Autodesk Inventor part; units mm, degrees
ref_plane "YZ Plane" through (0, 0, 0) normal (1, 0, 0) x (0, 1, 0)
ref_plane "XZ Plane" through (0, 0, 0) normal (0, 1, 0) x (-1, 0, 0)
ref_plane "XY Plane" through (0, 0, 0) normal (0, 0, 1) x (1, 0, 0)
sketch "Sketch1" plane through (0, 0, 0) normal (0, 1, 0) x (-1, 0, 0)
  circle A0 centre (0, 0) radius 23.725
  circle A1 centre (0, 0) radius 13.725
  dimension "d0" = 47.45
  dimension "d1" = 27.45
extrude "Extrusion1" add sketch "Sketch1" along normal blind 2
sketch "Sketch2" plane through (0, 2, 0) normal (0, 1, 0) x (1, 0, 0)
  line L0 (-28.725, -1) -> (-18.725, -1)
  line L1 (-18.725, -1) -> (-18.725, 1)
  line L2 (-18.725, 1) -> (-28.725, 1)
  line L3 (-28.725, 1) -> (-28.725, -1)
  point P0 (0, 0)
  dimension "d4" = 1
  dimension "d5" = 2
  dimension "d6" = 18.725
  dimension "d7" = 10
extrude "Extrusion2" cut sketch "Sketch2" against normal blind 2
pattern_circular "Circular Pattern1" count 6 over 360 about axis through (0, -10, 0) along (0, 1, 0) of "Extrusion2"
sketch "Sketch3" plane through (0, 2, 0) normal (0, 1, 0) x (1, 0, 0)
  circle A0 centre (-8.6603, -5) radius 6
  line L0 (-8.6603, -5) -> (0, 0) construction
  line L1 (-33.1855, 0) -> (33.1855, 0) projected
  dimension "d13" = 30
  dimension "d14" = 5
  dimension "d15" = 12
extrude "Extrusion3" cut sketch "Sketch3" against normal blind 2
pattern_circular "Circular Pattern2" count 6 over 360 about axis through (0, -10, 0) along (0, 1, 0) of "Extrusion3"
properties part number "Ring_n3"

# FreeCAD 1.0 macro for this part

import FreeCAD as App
import Part
import Sketcher

doc = App.newDocument("Part")
body = doc.addObject("PartDesign::Body", "Body")

# Sketch on XZ plane
sketch1 = doc.addObject("Sketcher::SketchObject", "Sketch")
body.addObject(sketch1)
sketch1.AttachmentSupport = (doc.XZ_Plane, [""])
sketch1.MapMode = "FlatFace"
sketch1.addGeometry([
    Part.Circle(App.Vector(0, 0, 0), App.Vector(0, 0, 1), 24),
    Part.Circle(App.Vector(0, 0, 0), App.Vector(0, 0, 1), 14),
], False)
sketch1.addConstraint([
    Sketcher.Constraint("Coincident", 0, 3, -1, 1),
    Sketcher.Constraint("Coincident", 1, 3, -1, 1),
    Sketcher.Constraint("Diameter", 0, 47.45),
    Sketcher.Constraint("Diameter", 1, 27.45),
])
pad1 = doc.addObject("PartDesign::Pad", "Pad")
body.addObject(pad1)
pad1.Profile = sketch1
pad1.Length = 2
pad1.Reversed = True

# Sketch on XZ plane
sketch2 = doc.addObject("Sketcher::SketchObject", "Sketch001")
body.addObject(sketch2)
sketch2.AttachmentSupport = (doc.XZ_Plane, [""])
sketch2.MapMode = "FlatFace"
sketch2.AttachmentOffset = App.Placement(App.Vector(0, 0, -2), App.Rotation())
sketch2.addGeometry([
    Part.LineSegment(App.Vector(-28.7, -1, 0), App.Vector(-28.7, 1, 0)),
    Part.LineSegment(App.Vector(-28.7, 1, 0), App.Vector(-18.7, 1, 0)),
    Part.LineSegment(App.Vector(-18.7, 1, 0), App.Vector(-18.7, -1, 0)),
    Part.LineSegment(App.Vector(-18.7, -1, 0), App.Vector(-28.7, -1, 0)),
], False)
sketch2.addConstraint([
    Sketcher.Constraint("Coincident", 0, 2, 1, 1),
    Sketcher.Constraint("Coincident", 1, 2, 2, 1),
    Sketcher.Constraint("Coincident", 2, 2, 3, 1),
    Sketcher.Constraint("Coincident", 3, 2, 0, 1),
    Sketcher.Constraint("Vertical", 0),
    Sketcher.Constraint("Horizontal", 1),
    Sketcher.Constraint("Vertical", 2),
    Sketcher.Constraint("Horizontal", 3),
    Sketcher.Constraint("DistanceX", 1, 1, 1, 2, 10.0),
    Sketcher.Constraint("DistanceY", 0, 1, 0, 2, 2.0),
    Sketcher.Constraint("DistanceY", -1, 1, 0, 2, 1.0),
    Sketcher.Constraint("DistanceX", 1, 2, -1, 1, 18.725),
])
pocket1 = doc.addObject("PartDesign::Pocket", "Pocket")
body.addObject(pocket1)
pocket1.Profile = sketch2
pocket1.Length = 2
pocket1.Reversed = True
doc.recompute()

polarpattern = doc.addObject("PartDesign::PolarPattern", "PolarPattern")
body.addObject(polarpattern)
polarpattern.Originals = [pocket1]
polarpattern.Axis = (doc.Y_Axis, [""])
polarpattern.Angle = 360
polarpattern.Occurrences = 6
body.Tip = polarpattern

# Sketch on XZ plane
sketch3 = doc.addObject("Sketcher::SketchObject", "Sketch002")
body.addObject(sketch3)
sketch3.AttachmentSupport = (doc.XZ_Plane, [""])
sketch3.MapMode = "FlatFace"
sketch3.AttachmentOffset = App.Placement(App.Vector(0, 0, -2), App.Rotation())
sketch3.addGeometry(Part.Circle(App.Vector(-9, 5, 0), App.Vector(0, 0, 1), 6), False)
sketch3.addConstraint([
    Sketcher.Constraint("Diameter", 0, 12.0),
    Sketcher.Constraint("DistanceY", -1, 1, 0, 3, 5.0),
    Sketcher.Constraint("DistanceX", 0, 3, -1, 1, 8.6603),
])
pocket2 = doc.addObject("PartDesign::Pocket", "Pocket001")
body.addObject(pocket2)
pocket2.Profile = sketch3
pocket2.Length = 2
pocket2.Reversed = True
doc.recompute()

polarpattern2 = doc.addObject("PartDesign::PolarPattern", "PolarPattern001")
body.addObject(polarpattern2)
polarpattern2.Originals = [pocket2]
polarpattern2.Axis = (doc.Y_Axis, [""])
polarpattern2.Angle = 360
polarpattern2.Occurrences = 6
body.Tip = polarpattern2

doc.recompute()
